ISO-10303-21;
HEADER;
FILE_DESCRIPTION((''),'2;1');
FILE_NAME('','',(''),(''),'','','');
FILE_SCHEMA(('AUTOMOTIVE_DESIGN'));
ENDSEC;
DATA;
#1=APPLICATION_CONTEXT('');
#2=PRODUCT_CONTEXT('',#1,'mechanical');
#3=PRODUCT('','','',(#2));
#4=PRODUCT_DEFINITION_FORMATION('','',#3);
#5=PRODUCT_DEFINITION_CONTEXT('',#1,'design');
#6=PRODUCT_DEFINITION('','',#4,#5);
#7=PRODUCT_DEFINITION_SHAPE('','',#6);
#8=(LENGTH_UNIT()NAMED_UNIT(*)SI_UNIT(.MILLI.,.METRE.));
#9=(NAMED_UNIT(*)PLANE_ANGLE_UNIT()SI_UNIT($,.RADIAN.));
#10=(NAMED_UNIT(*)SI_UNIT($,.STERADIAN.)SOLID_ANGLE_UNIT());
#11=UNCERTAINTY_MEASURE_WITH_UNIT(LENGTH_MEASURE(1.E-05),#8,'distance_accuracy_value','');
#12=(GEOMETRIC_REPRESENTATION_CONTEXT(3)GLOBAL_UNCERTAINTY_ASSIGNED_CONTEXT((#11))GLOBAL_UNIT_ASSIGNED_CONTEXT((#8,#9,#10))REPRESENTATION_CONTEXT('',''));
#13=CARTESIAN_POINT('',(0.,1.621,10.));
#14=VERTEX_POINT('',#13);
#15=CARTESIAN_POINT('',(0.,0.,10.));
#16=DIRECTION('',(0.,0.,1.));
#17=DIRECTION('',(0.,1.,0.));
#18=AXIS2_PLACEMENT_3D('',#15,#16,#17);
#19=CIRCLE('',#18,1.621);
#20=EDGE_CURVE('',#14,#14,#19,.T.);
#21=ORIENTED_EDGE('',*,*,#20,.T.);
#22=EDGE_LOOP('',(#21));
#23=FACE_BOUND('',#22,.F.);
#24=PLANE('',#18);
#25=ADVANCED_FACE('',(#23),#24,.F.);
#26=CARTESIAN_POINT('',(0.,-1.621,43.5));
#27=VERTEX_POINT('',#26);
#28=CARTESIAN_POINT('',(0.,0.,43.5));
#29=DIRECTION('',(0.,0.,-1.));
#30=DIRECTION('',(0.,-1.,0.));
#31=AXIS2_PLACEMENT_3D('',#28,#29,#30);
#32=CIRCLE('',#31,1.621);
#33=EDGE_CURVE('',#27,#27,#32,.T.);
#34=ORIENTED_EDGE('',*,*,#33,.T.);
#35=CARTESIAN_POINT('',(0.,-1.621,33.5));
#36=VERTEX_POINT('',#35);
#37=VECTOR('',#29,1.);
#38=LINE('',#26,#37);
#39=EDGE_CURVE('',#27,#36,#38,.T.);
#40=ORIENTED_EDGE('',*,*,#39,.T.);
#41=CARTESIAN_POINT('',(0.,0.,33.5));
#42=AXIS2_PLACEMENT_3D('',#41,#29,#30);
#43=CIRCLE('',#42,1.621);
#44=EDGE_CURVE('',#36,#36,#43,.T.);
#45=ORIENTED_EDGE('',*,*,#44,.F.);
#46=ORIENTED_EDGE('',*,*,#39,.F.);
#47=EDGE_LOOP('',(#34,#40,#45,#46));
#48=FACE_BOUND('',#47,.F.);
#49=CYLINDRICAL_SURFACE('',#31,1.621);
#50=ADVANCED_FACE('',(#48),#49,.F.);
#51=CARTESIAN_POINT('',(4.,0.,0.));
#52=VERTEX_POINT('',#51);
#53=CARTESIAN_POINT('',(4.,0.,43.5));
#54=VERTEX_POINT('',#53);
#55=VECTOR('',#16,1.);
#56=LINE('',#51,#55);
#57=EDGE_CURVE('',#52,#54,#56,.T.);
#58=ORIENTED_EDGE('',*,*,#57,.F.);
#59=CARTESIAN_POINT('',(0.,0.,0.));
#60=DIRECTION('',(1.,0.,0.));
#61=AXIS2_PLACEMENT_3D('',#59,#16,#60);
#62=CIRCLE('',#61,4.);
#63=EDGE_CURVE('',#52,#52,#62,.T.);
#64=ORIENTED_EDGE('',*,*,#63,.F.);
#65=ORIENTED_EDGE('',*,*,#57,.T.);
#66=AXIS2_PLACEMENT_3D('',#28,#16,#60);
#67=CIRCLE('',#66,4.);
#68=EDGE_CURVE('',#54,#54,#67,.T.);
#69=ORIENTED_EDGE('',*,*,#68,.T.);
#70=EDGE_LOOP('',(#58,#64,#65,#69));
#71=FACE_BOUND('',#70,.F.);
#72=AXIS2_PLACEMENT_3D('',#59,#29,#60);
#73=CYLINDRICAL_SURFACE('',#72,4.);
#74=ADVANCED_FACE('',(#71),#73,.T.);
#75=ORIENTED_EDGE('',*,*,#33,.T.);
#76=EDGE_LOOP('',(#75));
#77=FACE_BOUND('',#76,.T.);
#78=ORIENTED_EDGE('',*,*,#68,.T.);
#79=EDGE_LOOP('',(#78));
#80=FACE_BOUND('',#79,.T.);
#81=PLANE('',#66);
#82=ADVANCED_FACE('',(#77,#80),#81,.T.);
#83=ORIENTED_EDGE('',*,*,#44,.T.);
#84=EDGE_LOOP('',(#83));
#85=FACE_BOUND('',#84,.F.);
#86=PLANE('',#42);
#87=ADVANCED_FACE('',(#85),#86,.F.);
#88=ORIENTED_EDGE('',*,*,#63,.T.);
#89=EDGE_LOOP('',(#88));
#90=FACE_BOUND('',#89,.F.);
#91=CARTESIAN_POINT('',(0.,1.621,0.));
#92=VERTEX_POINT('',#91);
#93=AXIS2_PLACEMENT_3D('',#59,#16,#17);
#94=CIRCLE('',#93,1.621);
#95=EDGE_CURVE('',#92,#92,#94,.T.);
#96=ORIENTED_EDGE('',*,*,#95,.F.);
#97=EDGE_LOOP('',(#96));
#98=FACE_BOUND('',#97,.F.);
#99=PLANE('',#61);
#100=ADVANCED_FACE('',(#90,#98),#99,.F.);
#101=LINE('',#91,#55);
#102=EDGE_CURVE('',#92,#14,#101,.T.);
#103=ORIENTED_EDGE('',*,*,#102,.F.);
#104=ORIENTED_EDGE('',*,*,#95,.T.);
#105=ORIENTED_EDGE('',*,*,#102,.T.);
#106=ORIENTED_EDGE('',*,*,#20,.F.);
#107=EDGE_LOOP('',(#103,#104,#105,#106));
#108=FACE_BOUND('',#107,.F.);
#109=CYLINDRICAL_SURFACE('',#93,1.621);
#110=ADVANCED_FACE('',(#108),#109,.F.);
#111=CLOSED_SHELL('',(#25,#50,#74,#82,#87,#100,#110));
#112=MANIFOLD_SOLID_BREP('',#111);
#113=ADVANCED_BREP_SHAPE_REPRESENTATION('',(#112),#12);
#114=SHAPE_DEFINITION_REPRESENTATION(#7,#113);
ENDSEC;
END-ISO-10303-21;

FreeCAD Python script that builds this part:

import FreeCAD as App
import Part
import Sketcher
from FreeCAD import Vector

doc = App.newDocument("Part")
body = doc.addObject("PartDesign::Body", "Body")

sketch1 = body.newObject("Sketcher::SketchObject", "Sketch")
sketch1.AttachmentSupport = (doc.getObject("XY_Plane"), [""])
sketch1.MapMode = "FlatFace"
sketch1.addGeometry(Part.Circle(Vector(0, 0, 0), Vector(0, 0, 1), 4), False)
sketch1.addConstraint([
    Sketcher.Constraint("Coincident", 0, 3, -1, 1),
    Sketcher.Constraint("Diameter", 0, 8.0),
])
pad1 = body.newObject("PartDesign::Pad", "Pad")
pad1.Profile = sketch1
pad1.Length = 43.5

sketch2 = body.newObject("Sketcher::SketchObject", "Sketch001")
sketch2.AttachmentSupport = (doc.getObject("XY_Plane"), [""])
sketch2.MapMode = "FlatFace"
sketch2.addGeometry(Part.Circle(Vector(0, 0, 0), Vector(0, 0, 1), 1.6), False)
sketch2.addConstraint([
    Sketcher.Constraint("Coincident", 0, 3, -1, 1),
    Sketcher.Constraint("Diameter", 0, 3.242),
])
doc.recompute()
hole = body.newObject("PartDesign::Hole", "Hole")
hole.Profile = sketch2
hole.ThreadType = "None"
hole.Diameter = 3.242
hole.DepthType = "Dimension"
hole.Depth = 10
hole.DrillPoint = "Flat"
hole.Reversed = True

sketch3 = body.newObject("Sketcher::SketchObject", "Sketch002")
sketch3.AttachmentSupport = (doc.getObject("XY_Plane"), [""])
sketch3.MapMode = "FlatFace"
sketch3.AttachmentOffset = App.Placement(Vector(0, 0, 43.5), App.Rotation())
sketch3.addGeometry(Part.Circle(Vector(0, 0, 0), Vector(0, 0, 1), 1.6), False)
sketch3.addConstraint([
    Sketcher.Constraint("Coincident", 0, 3, -1, 1),
    Sketcher.Constraint("Diameter", 0, 3.242),
])
doc.recompute()
hole2 = body.newObject("PartDesign::Hole", "Hole001")
hole2.Profile = sketch3
hole2.ThreadType = "None"
hole2.Diameter = 3.242
hole2.DepthType = "Dimension"
hole2.Depth = 10
hole2.DrillPoint = "Flat"

doc.recompute()
